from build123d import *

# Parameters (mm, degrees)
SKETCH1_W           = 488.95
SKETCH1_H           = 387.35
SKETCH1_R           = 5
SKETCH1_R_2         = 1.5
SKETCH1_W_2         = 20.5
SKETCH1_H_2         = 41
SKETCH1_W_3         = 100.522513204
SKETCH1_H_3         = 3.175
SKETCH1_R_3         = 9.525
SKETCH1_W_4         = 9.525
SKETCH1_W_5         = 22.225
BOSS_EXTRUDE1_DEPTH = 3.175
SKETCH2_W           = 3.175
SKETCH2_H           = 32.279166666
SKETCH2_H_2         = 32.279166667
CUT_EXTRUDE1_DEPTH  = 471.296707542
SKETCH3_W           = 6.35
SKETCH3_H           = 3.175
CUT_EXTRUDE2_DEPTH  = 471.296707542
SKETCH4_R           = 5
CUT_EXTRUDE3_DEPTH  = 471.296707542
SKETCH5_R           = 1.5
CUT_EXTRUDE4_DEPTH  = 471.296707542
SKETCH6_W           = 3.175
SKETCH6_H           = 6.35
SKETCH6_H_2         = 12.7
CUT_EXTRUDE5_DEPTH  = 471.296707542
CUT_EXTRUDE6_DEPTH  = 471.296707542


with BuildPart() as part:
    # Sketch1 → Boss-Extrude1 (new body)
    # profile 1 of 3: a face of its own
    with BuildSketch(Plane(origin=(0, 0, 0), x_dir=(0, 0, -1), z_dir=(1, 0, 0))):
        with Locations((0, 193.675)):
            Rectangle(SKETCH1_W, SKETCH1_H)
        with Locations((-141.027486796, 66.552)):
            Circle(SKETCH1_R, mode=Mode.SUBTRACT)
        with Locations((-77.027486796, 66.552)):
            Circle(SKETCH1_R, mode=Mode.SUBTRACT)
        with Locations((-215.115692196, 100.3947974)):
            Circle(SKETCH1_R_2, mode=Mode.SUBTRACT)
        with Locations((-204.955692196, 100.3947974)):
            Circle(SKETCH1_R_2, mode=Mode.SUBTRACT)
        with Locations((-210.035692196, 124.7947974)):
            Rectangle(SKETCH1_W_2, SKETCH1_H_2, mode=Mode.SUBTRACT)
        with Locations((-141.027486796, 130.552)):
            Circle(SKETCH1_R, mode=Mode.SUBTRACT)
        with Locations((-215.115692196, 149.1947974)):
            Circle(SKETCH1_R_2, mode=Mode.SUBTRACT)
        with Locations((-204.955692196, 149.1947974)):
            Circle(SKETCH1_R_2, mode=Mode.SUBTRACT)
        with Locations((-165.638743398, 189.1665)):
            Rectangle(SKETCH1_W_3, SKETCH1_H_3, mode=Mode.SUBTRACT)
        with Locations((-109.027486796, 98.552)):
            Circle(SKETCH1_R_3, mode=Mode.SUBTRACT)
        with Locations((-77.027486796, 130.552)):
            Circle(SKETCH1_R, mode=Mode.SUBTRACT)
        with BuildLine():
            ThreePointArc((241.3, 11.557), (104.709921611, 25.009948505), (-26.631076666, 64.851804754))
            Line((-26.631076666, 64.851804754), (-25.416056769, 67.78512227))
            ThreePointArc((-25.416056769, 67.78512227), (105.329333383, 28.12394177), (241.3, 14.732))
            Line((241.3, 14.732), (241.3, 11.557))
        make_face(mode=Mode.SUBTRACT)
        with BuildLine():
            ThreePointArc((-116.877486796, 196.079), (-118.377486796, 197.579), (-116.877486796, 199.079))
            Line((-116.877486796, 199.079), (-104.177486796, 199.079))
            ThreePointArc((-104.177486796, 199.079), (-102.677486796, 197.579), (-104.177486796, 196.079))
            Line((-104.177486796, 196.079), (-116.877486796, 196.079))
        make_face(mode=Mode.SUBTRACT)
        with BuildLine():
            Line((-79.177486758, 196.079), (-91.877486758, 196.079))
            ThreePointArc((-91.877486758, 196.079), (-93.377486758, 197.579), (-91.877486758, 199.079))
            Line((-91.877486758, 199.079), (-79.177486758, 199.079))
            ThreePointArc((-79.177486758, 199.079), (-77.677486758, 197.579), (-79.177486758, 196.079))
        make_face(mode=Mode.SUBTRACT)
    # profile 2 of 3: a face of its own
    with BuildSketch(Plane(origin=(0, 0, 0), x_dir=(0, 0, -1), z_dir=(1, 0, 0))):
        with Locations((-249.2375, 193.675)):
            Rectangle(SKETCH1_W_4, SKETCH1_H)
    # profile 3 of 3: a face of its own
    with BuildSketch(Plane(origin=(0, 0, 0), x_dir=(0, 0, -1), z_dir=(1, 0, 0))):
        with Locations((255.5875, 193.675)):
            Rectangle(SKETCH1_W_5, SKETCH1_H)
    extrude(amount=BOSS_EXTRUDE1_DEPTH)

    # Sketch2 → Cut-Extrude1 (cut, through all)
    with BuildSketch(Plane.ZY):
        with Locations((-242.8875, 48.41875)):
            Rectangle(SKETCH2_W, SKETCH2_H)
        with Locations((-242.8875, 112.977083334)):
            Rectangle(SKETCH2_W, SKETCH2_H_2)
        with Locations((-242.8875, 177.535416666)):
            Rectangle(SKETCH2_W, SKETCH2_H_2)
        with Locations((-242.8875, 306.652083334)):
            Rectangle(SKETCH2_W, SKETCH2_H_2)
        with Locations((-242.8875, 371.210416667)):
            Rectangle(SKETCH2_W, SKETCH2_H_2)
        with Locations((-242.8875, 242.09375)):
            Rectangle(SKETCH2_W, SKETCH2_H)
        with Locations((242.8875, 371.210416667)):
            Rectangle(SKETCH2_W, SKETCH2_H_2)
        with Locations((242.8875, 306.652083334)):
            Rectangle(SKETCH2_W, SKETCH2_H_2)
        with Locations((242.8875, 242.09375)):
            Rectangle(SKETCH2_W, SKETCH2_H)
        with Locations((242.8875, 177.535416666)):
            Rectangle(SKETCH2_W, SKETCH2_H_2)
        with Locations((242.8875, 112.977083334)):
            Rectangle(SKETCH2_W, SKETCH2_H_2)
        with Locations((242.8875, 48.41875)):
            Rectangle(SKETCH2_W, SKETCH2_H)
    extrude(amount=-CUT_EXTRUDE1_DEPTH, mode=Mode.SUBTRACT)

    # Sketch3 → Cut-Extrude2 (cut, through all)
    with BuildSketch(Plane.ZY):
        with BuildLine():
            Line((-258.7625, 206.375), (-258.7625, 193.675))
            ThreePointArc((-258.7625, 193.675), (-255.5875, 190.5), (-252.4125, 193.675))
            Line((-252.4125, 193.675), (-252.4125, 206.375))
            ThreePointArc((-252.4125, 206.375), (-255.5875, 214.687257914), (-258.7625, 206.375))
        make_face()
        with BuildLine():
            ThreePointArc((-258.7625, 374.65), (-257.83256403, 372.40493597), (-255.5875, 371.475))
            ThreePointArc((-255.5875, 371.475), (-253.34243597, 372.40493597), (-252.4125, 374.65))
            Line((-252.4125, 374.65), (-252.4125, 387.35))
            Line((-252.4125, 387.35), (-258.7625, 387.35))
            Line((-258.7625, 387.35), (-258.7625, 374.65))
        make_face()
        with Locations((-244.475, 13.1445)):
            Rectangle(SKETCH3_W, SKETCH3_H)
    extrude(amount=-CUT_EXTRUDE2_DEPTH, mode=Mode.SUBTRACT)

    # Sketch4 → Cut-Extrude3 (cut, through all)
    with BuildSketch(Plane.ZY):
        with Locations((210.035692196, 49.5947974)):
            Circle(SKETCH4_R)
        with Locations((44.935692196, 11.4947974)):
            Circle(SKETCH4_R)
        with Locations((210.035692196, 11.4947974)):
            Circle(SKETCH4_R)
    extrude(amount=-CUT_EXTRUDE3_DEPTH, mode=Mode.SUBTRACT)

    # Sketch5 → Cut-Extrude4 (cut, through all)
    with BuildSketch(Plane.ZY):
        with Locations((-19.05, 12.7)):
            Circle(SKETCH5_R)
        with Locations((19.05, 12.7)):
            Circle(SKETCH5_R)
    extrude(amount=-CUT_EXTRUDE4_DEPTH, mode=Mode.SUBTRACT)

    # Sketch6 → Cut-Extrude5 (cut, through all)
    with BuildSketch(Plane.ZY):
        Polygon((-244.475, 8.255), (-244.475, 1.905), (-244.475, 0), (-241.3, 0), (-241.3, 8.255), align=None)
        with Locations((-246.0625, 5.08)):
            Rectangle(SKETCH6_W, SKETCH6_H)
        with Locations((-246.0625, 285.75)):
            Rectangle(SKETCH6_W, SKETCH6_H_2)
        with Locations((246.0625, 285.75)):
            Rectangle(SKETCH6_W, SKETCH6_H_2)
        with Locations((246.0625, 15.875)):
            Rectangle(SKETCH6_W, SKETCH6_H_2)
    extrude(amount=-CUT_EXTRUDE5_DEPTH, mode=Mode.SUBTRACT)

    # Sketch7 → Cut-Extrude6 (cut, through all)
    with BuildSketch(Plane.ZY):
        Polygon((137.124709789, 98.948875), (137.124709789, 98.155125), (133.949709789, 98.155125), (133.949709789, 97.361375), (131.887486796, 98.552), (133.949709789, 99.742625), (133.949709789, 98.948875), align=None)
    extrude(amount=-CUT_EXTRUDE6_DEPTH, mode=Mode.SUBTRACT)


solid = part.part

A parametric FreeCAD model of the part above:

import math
import FreeCAD as App
import Part
import Sketcher
Q = App.Units.Quantity

doc = App.newDocument("Part")
body = doc.addObject("PartDesign::Body", "Body")

# Sketch on YZ plane
sketch1 = body.newObject("Sketcher::SketchObject", "Sketch")
sketch1.AttachmentSupport = (doc.getObject("YZ_Plane"), [""])
sketch1.MapMode = "FlatFace"
sketch1.addGeometry([
    Part.LineSegment(App.Vector(0, -266.7, 0), App.Vector(387.4, -266.7, 0)),  # 0
    Part.LineSegment(App.Vector(387.4, -266.7, 0), App.Vector(387.4, 254, 0)),  # 1
    Part.LineSegment(App.Vector(387.4, 254, 0), App.Vector(0, 254, 0)),  # 2
    Part.LineSegment(App.Vector(0, 254, 0), App.Vector(0, -266.7, 0)),  # 3
    Part.Circle(App.Vector(66.6, 141, 0), App.Vector(0, 0, 1), 5),  # 4
    Part.Circle(App.Vector(100.4, 215.1, 0), App.Vector(0, 0, 1), 1.5),  # 5
    Part.Circle(App.Vector(100.4, 205, 0), App.Vector(0, 0, 1), 1.5),  # 6
    Part.Circle(App.Vector(98.6, 109, 0), App.Vector(0, 0, 1), 9.5),  # 7
    Part.Circle(App.Vector(66.6, 77, 0), App.Vector(0, 0, 1), 5),  # 8
    Part.LineSegment(App.Vector(14.7, -241.3, 0), App.Vector(11.6, -241.3, 0)),  # 9
    Part.ArcOfCircle(Part.Circle(App.Vector(711.7, -241.3, 0), App.Vector(0, 0, 1), 700.1), math.radians(157), math.radians(180)),  # 10
    Part.LineSegment(App.Vector(64.9, 26.6, 0), App.Vector(67.8, 25.4, 0)),  # 11
    Part.ArcOfCircle(Part.Circle(App.Vector(711.7, -241.3, 0), App.Vector(0, 0, 1), 697), math.radians(157), math.radians(180)),  # 12
    Part.LineSegment(App.Vector(104.3, 199.8, 0), App.Vector(104.3, 220.3, 0)),  # 13
    Part.LineSegment(App.Vector(104.3, 220.3, 0), App.Vector(145.3, 220.3, 0)),  # 14
    Part.LineSegment(App.Vector(145.3, 220.3, 0), App.Vector(145.3, 199.8, 0)),  # 15
    Part.LineSegment(App.Vector(145.3, 199.8, 0), App.Vector(104.3, 199.8, 0)),  # 16
    Part.Circle(App.Vector(149.2, 215.1, 0), App.Vector(0, 0, 1), 1.5),  # 17
    Part.Circle(App.Vector(149.2, 205, 0), App.Vector(0, 0, 1), 1.5),  # 18
    Part.Circle(App.Vector(130.6, 141, 0), App.Vector(0, 0, 1), 5),  # 19
    Part.Circle(App.Vector(130.6, 77, 0), App.Vector(0, 0, 1), 5),  # 20
    Part.LineSegment(App.Vector(187.6, 115.4, 0), App.Vector(187.6, 215.9, 0)),  # 21
    Part.LineSegment(App.Vector(187.6, 215.9, 0), App.Vector(190.8, 215.9, 0)),  # 22
    Part.LineSegment(App.Vector(190.8, 215.9, 0), App.Vector(190.8, 115.4, 0)),  # 23
    Part.LineSegment(App.Vector(190.8, 115.4, 0), App.Vector(187.6, 115.4, 0)),  # 24
    Part.LineSegment(App.Vector(196.1, 104.2, 0), App.Vector(196.1, 116.9, 0)),  # 25
    Part.ArcOfCircle(Part.Circle(App.Vector(197.6, 116.9, 0), App.Vector(0, 0, 1), 1.5), math.radians(0), math.radians(180)),  # 26
    Part.LineSegment(App.Vector(199.1, 116.9, 0), App.Vector(199.1, 104.2, 0)),  # 27
    Part.ArcOfCircle(Part.Circle(App.Vector(197.6, 104.2, 0), App.Vector(0, 0, 1), 1.5), math.radians(180), math.radians(360)),  # 28
    Part.ArcOfCircle(Part.Circle(App.Vector(197.6, 79.2, 0), App.Vector(0, 0, 1), 1.5), math.radians(180), math.radians(360)),  # 29
    Part.LineSegment(App.Vector(196.1, 79.2, 0), App.Vector(196.1, 91.9, 0)),  # 30
    Part.ArcOfCircle(Part.Circle(App.Vector(197.6, 91.9, 0), App.Vector(0, 0, 1), 1.5), math.radians(0), math.radians(180)),  # 31
    Part.LineSegment(App.Vector(199.1, 91.9, 0), App.Vector(199.1, 79.2, 0)),  # 32
], False)
sketch1.addConstraint([
    Sketcher.Constraint("Coincident", 0, 2, 1, 1),
    Sketcher.Constraint("Coincident", 1, 2, 2, 1),
    Sketcher.Constraint("Coincident", 2, 2, 3, 1),
    Sketcher.Constraint("Coincident", 3, 2, 0, 1),
    Sketcher.Constraint("Coincident", 9, 2, 10, 2),
    Sketcher.Constraint("Coincident", 10, 1, 11, 1),
    Sketcher.Constraint("Coincident", 11, 2, 12, 1),
    Sketcher.Constraint("Coincident", 12, 2, 9, 1),
    Sketcher.Constraint("Coincident", 13, 2, 14, 1),
    Sketcher.Constraint("Coincident", 14, 2, 15, 1),
    Sketcher.Constraint("Coincident", 15, 2, 16, 1),
    Sketcher.Constraint("Coincident", 16, 2, 13, 1),
    Sketcher.Constraint("Coincident", 21, 2, 22, 1),
    Sketcher.Constraint("Coincident", 22, 2, 23, 1),
    Sketcher.Constraint("Coincident", 23, 2, 24, 1),
    Sketcher.Constraint("Coincident", 24, 2, 21, 1),
    Sketcher.Constraint("Tangent", 25, 2, 26, 2),
    Sketcher.Constraint("Tangent", 26, 1, 27, 1),
    Sketcher.Constraint("Tangent", 27, 2, 28, 2),
    Sketcher.Constraint("Tangent", 28, 1, 25, 1),
    Sketcher.Constraint("Tangent", 29, 1, 30, 1),
    Sketcher.Constraint("Tangent", 30, 2, 31, 2),
    Sketcher.Constraint("Tangent", 31, 1, 32, 1),
    Sketcher.Constraint("Tangent", 32, 2, 29, 2),
    Sketcher.Constraint("Horizontal", 0),
    Sketcher.Constraint("Vertical", 1),
    Sketcher.Constraint("Horizontal", 2),
    Sketcher.Constraint("Vertical", 3),
    Sketcher.Constraint("Horizontal", 9),
    Sketcher.Constraint("Vertical", 13),
    Sketcher.Constraint("Horizontal", 14),
    Sketcher.Constraint("Vertical", 15),
    Sketcher.Constraint("Horizontal", 16),
    Sketcher.Constraint("Vertical", 21),
    Sketcher.Constraint("Horizontal", 22),
    Sketcher.Constraint("Vertical", 23),
    Sketcher.Constraint("Horizontal", 24),
    Sketcher.Constraint("Vertical", 25),
    Sketcher.Constraint("Vertical", 27),
    Sketcher.Constraint("Vertical", 30),
    Sketcher.Constraint("Vertical", 32),
    Sketcher.Constraint("Coincident", 12, 3, 10, 3),
    Sketcher.Constraint("Equal", 5, 6),
    Sketcher.Constraint("Equal", 4, 8),
    Sketcher.Constraint("Equal", 6, 17),
    Sketcher.Constraint("Equal", 17, 18),
    Sketcher.Constraint("Equal", 8, 19),
    Sketcher.Constraint("Equal", 19, 20),
    Sketcher.Constraint("Equal", 18, 26),
    Sketcher.Constraint("Equal", 28, 29),
    Sketcher.Constraint("PointOnObject", 2, 2, -2),
    Sketcher.Constraint("Horizontal", 5, 3, 17, 3),
    Sketcher.Constraint("Horizontal", 6, 3, 18, 3),
    Sketcher.Constraint("Horizontal", 4, 3, 19, 3),
    Sketcher.Constraint("Horizontal", 8, 3, 20, 3),
    Sketcher.Constraint("Horizontal", 12, 3, 9, 2),
    Sketcher.Constraint("Vertical", 5, 3, 6, 3),
    Sketcher.Constraint("Vertical", 4, 3, 8, 3),
    Sketcher.Constraint("Vertical", 17, 3, 18, 3),
    Sketcher.Constraint("Vertical", 19, 3, 20, 3),
    Sketcher.Constraint("Vertical", 28, 3, 29, 3),
    Sketcher.Constraint("Equal", 9, 22),
    Sketcher.Constraint("Equal", 27, 30),
    Sketcher.Constraint("Diameter", 7, Q("0.75 in")),
    Sketcher.Constraint("DistanceY", 1, 1, 1, 2, Q("20.5 in")),
    Sketcher.Constraint("DistanceY", 25, 1, 25, 2, Q("0.5 in")),
    Sketcher.Constraint("DistanceY", -1, 1, 1, 2, Q("10 in")),
    Sketcher.Constraint("DistanceY", 0, 2, 12, 3, Q("1 in")),
    Sketcher.Constraint("DistanceX", 0, 1, 0, 2, Q("15.25 in")),
    Sketcher.Constraint("DistanceY", -1, 1, 21, 2, Q("8.5 in")),
    Sketcher.Constraint("Angle", 11, Q("-22.5 deg")),
    Sketcher.Constraint("DistanceY", 6, 3, 5, 3, Q("0.4 in")),
    Sketcher.Constraint("Diameter", 4, Q("10 mm")),
    Sketcher.Constraint("Diameter", 5, Q("3 mm")),
    Sketcher.Constraint("DistanceX", 9, 2, 9, 1, Q("0.125 in")),
    Sketcher.Constraint("DistanceX", -1, 1, 7, 3, Q("3.88 in")),
    Sketcher.Constraint("DistanceX", -1, 1, 12, 2, Q("0.58 in")),
    Sketcher.Constraint("DistanceX", -1, 1, 22, 2, Q("7.51 in")),
    Sketcher.Constraint("DistanceX", 14, 1, 14, 2, Q("41 mm")),
    Sketcher.Constraint("DistanceY", 13, 1, 13, 2, Q("20.5 mm")),
    Sketcher.Constraint("Radius", 10, Q("700.137644 mm")),
    Sketcher.Constraint("DistanceX", -1, 1, 4, 3, Q("66.552 mm")),
    Sketcher.Constraint("DistanceX", -1, 1, 19, 3, Q("130.552 mm")),
    Sketcher.Constraint("DistanceX", -1, 1, 26, 3, Q("197.579 mm")),
    Sketcher.Constraint("DistanceY", 7, 3, 4, 3, Q("32 mm")),
    Sketcher.Constraint("DistanceY", 8, 3, 7, 3, Q("32 mm")),
    Sketcher.Constraint("DistanceX", 5, 3, 17, 3, Q("48.8 mm")),
    Sketcher.Constraint("DistanceY", 26, 3, 19, 3, Q("24.15 mm")),
    Sketcher.Constraint("DistanceY", 29, 3, 28, 3, Q("25 mm")),
    Sketcher.Constraint("DistanceX", 5, 3, 13, 2, Q("3.9 mm")),
    Sketcher.Constraint("DistanceY", 5, 3, 13, 2, Q("5.17 mm")),
    Sketcher.Constraint("DistanceY", 23, 2, 26, 3, Q("1.5 mm")),
    Sketcher.Constraint("DistanceY", 21, 1, 21, 2, Q("100.522513 mm")),
    Sketcher.Constraint("DistanceY", 11, 2, 8, 3, Q("51.61143 mm")),
    Sketcher.Constraint("DistanceX", -1, 1, 5, 3, Q("100.394797 mm")),
    Sketcher.Constraint("DistanceY", -1, 1, 5, 3, Q("215.115692 mm")),
])
pad1 = body.newObject("PartDesign::Pad", "Pad")
pad1.Profile = sketch1
pad1.Length = Q("0.125 in")

# Sketch on YZ plane
sketch2 = body.newObject("Sketcher::SketchObject", "Sketch001")
sketch2.AttachmentSupport = (doc.getObject("YZ_Plane"), [""])
sketch2.MapMode = "FlatFace"
sketch2.addGeometry([
    Part.LineSegment(App.Vector(64.6, -244.5, 0), App.Vector(32.3, -244.5, 0)),  # 0
    Part.LineSegment(App.Vector(32.3, -244.5, 0), App.Vector(32.3, -241.3, 0)),  # 1
    Part.LineSegment(App.Vector(32.3, -241.3, 0), App.Vector(64.6, -241.3, 0)),  # 2
    Part.LineSegment(App.Vector(64.6, -241.3, 0), App.Vector(64.6, -244.5, 0)),  # 3
    Part.LineSegment(App.Vector(129.1, -244.5, 0), App.Vector(96.8, -244.5, 0)),  # 4
    Part.LineSegment(App.Vector(96.8, -244.5, 0), App.Vector(96.8, -241.3, 0)),  # 5
    Part.LineSegment(App.Vector(96.8, -241.3, 0), App.Vector(129.1, -241.3, 0)),  # 6
    Part.LineSegment(App.Vector(129.1, -241.3, 0), App.Vector(129.1, -244.5, 0)),  # 7
    Part.LineSegment(App.Vector(193.7, -244.5, 0), App.Vector(161.4, -244.5, 0)),  # 8
    Part.LineSegment(App.Vector(161.4, -244.5, 0), App.Vector(161.4, -241.3, 0)),  # 9
    Part.LineSegment(App.Vector(161.4, -241.3, 0), App.Vector(193.7, -241.3, 0)),  # 10
    Part.LineSegment(App.Vector(193.7, -241.3, 0), App.Vector(193.7, -244.5, 0)),  # 11
    Part.LineSegment(App.Vector(322.8, -244.5, 0), App.Vector(290.5, -244.5, 0)),  # 12
    Part.LineSegment(App.Vector(290.5, -244.5, 0), App.Vector(290.5, -241.3, 0)),  # 13
    Part.LineSegment(App.Vector(290.5, -241.3, 0), App.Vector(322.8, -241.3, 0)),  # 14
    Part.LineSegment(App.Vector(322.8, -241.3, 0), App.Vector(322.8, -244.5, 0)),  # 15
    Part.LineSegment(App.Vector(387.4, -244.5, 0), App.Vector(355.1, -244.5, 0)),  # 16
    Part.LineSegment(App.Vector(355.1, -244.5, 0), App.Vector(355.1, -241.3, 0)),  # 17
    Part.LineSegment(App.Vector(355.1, -241.3, 0), App.Vector(387.4, -241.3, 0)),  # 18
    Part.LineSegment(App.Vector(387.4, -241.3, 0), App.Vector(387.4, -244.5, 0)),  # 19
    Part.LineSegment(App.Vector(258.2, -244.5, 0), App.Vector(226, -244.5, 0)),  # 20
    Part.LineSegment(App.Vector(226, -244.5, 0), App.Vector(226, -241.3, 0)),  # 21
    Part.LineSegment(App.Vector(226, -241.3, 0), App.Vector(258.2, -241.3, 0)),  # 22
    Part.LineSegment(App.Vector(258.2, -241.3, 0), App.Vector(258.2, -244.5, 0)),  # 23
    Part.LineSegment(App.Vector(387.4, 241.3, 0), App.Vector(355.1, 241.3, 0)),  # 24
    Part.LineSegment(App.Vector(355.1, 241.3, 0), App.Vector(355.1, 244.5, 0)),  # 25
    Part.LineSegment(App.Vector(355.1, 244.5, 0), App.Vector(387.4, 244.5, 0)),  # 26
    Part.LineSegment(App.Vector(387.4, 244.5, 0), App.Vector(387.4, 241.3, 0)),  # 27
    Part.LineSegment(App.Vector(322.8, 241.3, 0), App.Vector(290.5, 241.3, 0)),  # 28
    Part.LineSegment(App.Vector(290.5, 241.3, 0), App.Vector(290.5, 244.5, 0)),  # 29
    Part.LineSegment(App.Vector(290.5, 244.5, 0), App.Vector(322.8, 244.5, 0)),  # 30
    Part.LineSegment(App.Vector(322.8, 244.5, 0), App.Vector(322.8, 241.3, 0)),  # 31
    Part.LineSegment(App.Vector(258.2, 241.3, 0), App.Vector(226, 241.3, 0)),  # 32
    Part.LineSegment(App.Vector(226, 241.3, 0), App.Vector(226, 244.5, 0)),  # 33
    Part.LineSegment(App.Vector(226, 244.5, 0), App.Vector(258.2, 244.5, 0)),  # 34
    Part.LineSegment(App.Vector(258.2, 244.5, 0), App.Vector(258.2, 241.3, 0)),  # 35
    Part.LineSegment(App.Vector(193.7, 241.3, 0), App.Vector(161.4, 241.3, 0)),  # 36
    Part.LineSegment(App.Vector(161.4, 241.3, 0), App.Vector(161.4, 244.5, 0)),  # 37
    Part.LineSegment(App.Vector(161.4, 244.5, 0), App.Vector(193.7, 244.5, 0)),  # 38
    Part.LineSegment(App.Vector(193.7, 244.5, 0), App.Vector(193.7, 241.3, 0)),  # 39
    Part.LineSegment(App.Vector(129.1, 241.3, 0), App.Vector(96.8, 241.3, 0)),  # 40
    Part.LineSegment(App.Vector(96.8, 241.3, 0), App.Vector(96.8, 244.5, 0)),  # 41
    Part.LineSegment(App.Vector(96.8, 244.5, 0), App.Vector(129.1, 244.5, 0)),  # 42
    Part.LineSegment(App.Vector(129.1, 244.5, 0), App.Vector(129.1, 241.3, 0)),  # 43
    Part.LineSegment(App.Vector(64.6, 241.3, 0), App.Vector(32.3, 241.3, 0)),  # 44
    Part.LineSegment(App.Vector(32.3, 241.3, 0), App.Vector(32.3, 244.5, 0)),  # 45
    Part.LineSegment(App.Vector(32.3, 244.5, 0), App.Vector(64.6, 244.5, 0)),  # 46
    Part.LineSegment(App.Vector(64.6, 244.5, 0), App.Vector(64.6, 241.3, 0)),  # 47
], False)
sketch2.addConstraint([
    Sketcher.Constraint("Coincident", 0, 2, 1, 1),
    Sketcher.Constraint("Coincident", 1, 2, 2, 1),
    Sketcher.Constraint("Coincident", 2, 2, 3, 1),
    Sketcher.Constraint("Coincident", 3, 2, 0, 1),
    Sketcher.Constraint("Coincident", 4, 2, 5, 1),
    Sketcher.Constraint("Coincident", 5, 2, 6, 1),
    Sketcher.Constraint("Coincident", 6, 2, 7, 1),
    Sketcher.Constraint("Coincident", 7, 2, 4, 1),
    Sketcher.Constraint("Coincident", 8, 2, 9, 1),
    Sketcher.Constraint("Coincident", 9, 2, 10, 1),
    Sketcher.Constraint("Coincident", 10, 2, 11, 1),
    Sketcher.Constraint("Coincident", 11, 2, 8, 1),
    Sketcher.Constraint("Coincident", 12, 2, 13, 1),
    Sketcher.Constraint("Coincident", 13, 2, 14, 1),
    Sketcher.Constraint("Coincident", 14, 2, 15, 1),
    Sketcher.Constraint("Coincident", 15, 2, 12, 1),
    Sketcher.Constraint("Coincident", 16, 2, 17, 1),
    Sketcher.Constraint("Coincident", 17, 2, 18, 1),
    Sketcher.Constraint("Coincident", 18, 2, 19, 1),
    Sketcher.Constraint("Coincident", 19, 2, 16, 1),
    Sketcher.Constraint("Coincident", 20, 2, 21, 1),
    Sketcher.Constraint("Coincident", 21, 2, 22, 1),
    Sketcher.Constraint("Coincident", 22, 2, 23, 1),
    Sketcher.Constraint("Coincident", 23, 2, 20, 1),
    Sketcher.Constraint("Coincident", 24, 2, 25, 1),
    Sketcher.Constraint("Coincident", 25, 2, 26, 1),
    Sketcher.Constraint("Coincident", 26, 2, 27, 1),
    Sketcher.Constraint("Coincident", 27, 2, 24, 1),
    Sketcher.Constraint("Coincident", 28, 2, 29, 1),
    Sketcher.Constraint("Coincident", 29, 2, 30, 1),
    Sketcher.Constraint("Coincident", 30, 2, 31, 1),
    Sketcher.Constraint("Coincident", 31, 2, 28, 1),
    Sketcher.Constraint("Coincident", 32, 2, 33, 1),
    Sketcher.Constraint("Coincident", 33, 2, 34, 1),
    Sketcher.Constraint("Coincident", 34, 2, 35, 1),
    Sketcher.Constraint("Coincident", 35, 2, 32, 1),
    Sketcher.Constraint("Coincident", 36, 2, 37, 1),
    Sketcher.Constraint("Coincident", 37, 2, 38, 1),
    Sketcher.Constraint("Coincident", 38, 2, 39, 1),
    Sketcher.Constraint("Coincident", 39, 2, 36, 1),
    Sketcher.Constraint("Coincident", 40, 2, 41, 1),
    Sketcher.Constraint("Coincident", 41, 2, 42, 1),
    Sketcher.Constraint("Coincident", 42, 2, 43, 1),
    Sketcher.Constraint("Coincident", 43, 2, 40, 1),
    Sketcher.Constraint("Coincident", 44, 2, 45, 1),
    Sketcher.Constraint("Coincident", 45, 2, 46, 1),
    Sketcher.Constraint("Coincident", 46, 2, 47, 1),
    Sketcher.Constraint("Coincident", 47, 2, 44, 1),
    Sketcher.Constraint("Horizontal", 0),
    Sketcher.Constraint("Vertical", 1),
    Sketcher.Constraint("Horizontal", 2),
    Sketcher.Constraint("Vertical", 3),
    Sketcher.Constraint("Horizontal", 4),
    Sketcher.Constraint("Vertical", 5),
    Sketcher.Constraint("Horizontal", 6),
    Sketcher.Constraint("Vertical", 7),
    Sketcher.Constraint("Horizontal", 8),
    Sketcher.Constraint("Vertical", 9),
    Sketcher.Constraint("Horizontal", 10),
    Sketcher.Constraint("Vertical", 11),
    Sketcher.Constraint("Horizontal", 12),
    Sketcher.Constraint("Vertical", 13),
    Sketcher.Constraint("Horizontal", 14),
    Sketcher.Constraint("Vertical", 15),
    Sketcher.Constraint("Horizontal", 16),
    Sketcher.Constraint("Vertical", 17),
    Sketcher.Constraint("Horizontal", 18),
    Sketcher.Constraint("Vertical", 19),
    Sketcher.Constraint("Horizontal", 20),
    Sketcher.Constraint("Vertical", 21),
    Sketcher.Constraint("Horizontal", 22),
    Sketcher.Constraint("Vertical", 23),
    Sketcher.Constraint("Horizontal", 24),
    Sketcher.Constraint("Vertical", 25),
    Sketcher.Constraint("Horizontal", 26),
    Sketcher.Constraint("Vertical", 27),
    Sketcher.Constraint("Horizontal", 28),
    Sketcher.Constraint("Vertical", 29),
    Sketcher.Constraint("Horizontal", 30),
    Sketcher.Constraint("Vertical", 31),
    Sketcher.Constraint("Horizontal", 32),
    Sketcher.Constraint("Vertical", 33),
    Sketcher.Constraint("Horizontal", 34),
    Sketcher.Constraint("Vertical", 35),
    Sketcher.Constraint("Horizontal", 36),
    Sketcher.Constraint("Vertical", 37),
    Sketcher.Constraint("Horizontal", 38),
    Sketcher.Constraint("Vertical", 39),
    Sketcher.Constraint("Horizontal", 40),
    Sketcher.Constraint("Vertical", 41),
    Sketcher.Constraint("Horizontal", 42),
    Sketcher.Constraint("Vertical", 43),
    Sketcher.Constraint("Horizontal", 44),
    Sketcher.Constraint("Vertical", 45),
    Sketcher.Constraint("Horizontal", 46),
    Sketcher.Constraint("Vertical", 47),
    Sketcher.Constraint("Symmetric", 17, 2, 24, 2, -1),
    Sketcher.Constraint("Symmetric", 19, 2, 26, 2, -1),
    Sketcher.Constraint("Symmetric", 13, 2, 28, 2, -1),
    Sketcher.Constraint("Symmetric", 15, 2, 30, 2, -1),
    Sketcher.Constraint("Symmetric", 21, 2, 32, 2, -1),
    Sketcher.Constraint("Symmetric", 23, 2, 34, 2, -1),
    Sketcher.Constraint("Symmetric", 9, 2, 36, 2, -1),
    Sketcher.Constraint("Symmetric", 11, 2, 38, 2, -1),
    Sketcher.Constraint("Symmetric", 5, 2, 40, 2, -1),
    Sketcher.Constraint("Symmetric", 7, 2, 42, 2, -1),
    Sketcher.Constraint("Symmetric", 1, 2, 44, 2, -1),
    Sketcher.Constraint("Symmetric", 3, 2, 46, 2, -1),
    Sketcher.Constraint("Horizontal", 3, 2, 4, 2),
    Sketcher.Constraint("Horizontal", 2, 2, 5, 2),
    Sketcher.Constraint("Horizontal", 7, 2, 8, 2),
    Sketcher.Constraint("Horizontal", 6, 2, 9, 2),
    Sketcher.Constraint("Horizontal", 11, 2, 12, 2),
    Sketcher.Constraint("Horizontal", 10, 2, 13, 2),
    Sketcher.Constraint("Horizontal", 15, 2, 16, 2),
    Sketcher.Constraint("Horizontal", 14, 2, 17, 2),
    Sketcher.Constraint("Horizontal", 19, 2, 20, 2),
    Sketcher.Constraint("Horizontal", 18, 2, 21, 2),
    Sketcher.Constraint("Equal", 2, 4),
    Sketcher.Constraint("Equal", 6, 8),
    Sketcher.Constraint("Equal", 10, 12),
    Sketcher.Constraint("Equal", 14, 16),
    Sketcher.Constraint("Equal", 18, 20),
    Sketcher.Constraint("DistanceY", 17, 2, 24, 2, Q("19 in")),
    Sketcher.Constraint("DistanceY", 1, 1, 1, 2, Q("0.125 in")),
    Sketcher.Constraint("DistanceX", -1, 1, 18, 2, Q("15.25 in")),
    Sketcher.Constraint("DistanceX", -1, 1, 4, 2, Q("3.8125 in")),
    Sketcher.Constraint("DistanceX", -1, 1, 10, 2, Q("7.625 in")),
    Sketcher.Constraint("DistanceX", -1, 1, 12, 2, Q("11.4375 in")),
    Sketcher.Constraint("DistanceX", 1, 2, 6, 2, Q("3.8125 in")),
    Sketcher.Constraint("DistanceX", 3, 2, 8, 2, Q("3.8125 in")),
    Sketcher.Constraint("DistanceX", 32, 2, 31, 2, Q("3.8125 in")),
])
pocket1 = body.newObject("PartDesign::Pocket", "Pocket")
pocket1.Profile = sketch2
pocket1.Type = "ThroughAll"
pocket1.Reversed = True

# Sketch on YZ plane
sketch3 = body.newObject("Sketcher::SketchObject", "Sketch002")
sketch3.AttachmentSupport = (doc.getObject("YZ_Plane"), [""])
sketch3.MapMode = "FlatFace"
sketch3.addGeometry([
    Part.LineSegment(App.Vector(206.4, -258.8, 0), App.Vector(193.7, -258.8, 0)),  # 0
    Part.ArcOfCircle(Part.Circle(App.Vector(193.7, -255.6, 0), App.Vector(0, 0, 1), 3.2), math.radians(90), math.radians(270)),  # 1
    Part.LineSegment(App.Vector(193.7, -252.4, 0), App.Vector(206.4, -252.4, 0)),  # 2
    Part.ArcOfCircle(Part.Circle(App.Vector(209.9, -255.6, 0), App.Vector(0, 0, 1), 4.8), math.radians(-138), math.radians(138)),  # 3
    Part.ArcOfCircle(Part.Circle(App.Vector(374.7, -255.6, 0), App.Vector(0, 0, 1), 3.2), math.radians(-180), math.radians(-90)),  # 4
    Part.ArcOfCircle(Part.Circle(App.Vector(374.7, -255.6, 0), App.Vector(0, 0, 1), 3.2), math.radians(90), math.radians(180)),  # 5
    Part.LineSegment(App.Vector(374.6, -252.4, 0), App.Vector(387.4, -252.4, 0)),  # 6
    Part.LineSegment(App.Vector(387.4, -252.4, 0), App.Vector(387.4, -258.8, 0)),  # 7
    Part.LineSegment(App.Vector(387.4, -258.8, 0), App.Vector(374.6, -258.8, 0)),  # 8
    Part.LineSegment(App.Vector(14.7, -247.7, 0), App.Vector(11.6, -247.7, 0)),  # 9
    Part.LineSegment(App.Vector(11.6, -247.7, 0), App.Vector(11.6, -241.3, 0)),  # 10
    Part.LineSegment(App.Vector(11.6, -241.3, 0), App.Vector(14.7, -241.3, 0)),  # 11
    Part.LineSegment(App.Vector(14.7, -241.3, 0), App.Vector(14.7, -247.7, 0)),  # 12
], False)
sketch3.addConstraint([
    Sketcher.Constraint("Tangent", 0, 2, 1, 2),
    Sketcher.Constraint("Tangent", 1, 1, 2, 1),
    Sketcher.Constraint("Coincident", 2, 2, 3, 2),
    Sketcher.Constraint("Coincident", 3, 1, 0, 1),
    Sketcher.Constraint("Tangent", 4, 1, 5, 2),
    Sketcher.Constraint("Tangent", 5, 1, 6, 1),
    Sketcher.Constraint("Coincident", 6, 2, 7, 1),
    Sketcher.Constraint("Coincident", 7, 2, 8, 1),
    Sketcher.Constraint("Tangent", 8, 2, 4, 2),
    Sketcher.Constraint("Coincident", 9, 2, 10, 1),
    Sketcher.Constraint("Coincident", 10, 2, 11, 1),
    Sketcher.Constraint("Coincident", 11, 2, 12, 1),
    Sketcher.Constraint("Coincident", 12, 2, 9, 1),
    Sketcher.Constraint("Horizontal", 0),
    Sketcher.Constraint("Horizontal", 2),
    Sketcher.Constraint("Horizontal", 6),
    Sketcher.Constraint("Vertical", 7),
    Sketcher.Constraint("Horizontal", 8),
    Sketcher.Constraint("Horizontal", 9),
    Sketcher.Constraint("Vertical", 10),
    Sketcher.Constraint("Horizontal", 11),
    Sketcher.Constraint("Vertical", 12),
    Sketcher.Constraint("Equal", 1, 4),
    Sketcher.Constraint("Equal", 4, 5),
    Sketcher.Constraint("Horizontal", 1, 3, 3, 3),
    Sketcher.Constraint("Horizontal", 3, 3, 4, 3),
    Sketcher.Constraint("Horizontal", 5, 3, 4, 1),
    Sketcher.Constraint("Equal", 2, 6),
    Sketcher.Constraint("Equal", 7, 10),
    Sketcher.Constraint("DistanceX", 0, 2, 0, 1, Q("0.5 in")),
    Sketcher.Constraint("Radius", 1, Q("0.125 in")),
    Sketcher.Constraint("Radius", 3, Q("0.1875 in")),
    Sketcher.Constraint("DistanceY", 10, 2, -1, 1, Q("9.5 in")),
    Sketcher.Constraint("DistanceX", 2, 2, 4, 1, Q("6.5 in")),
    Sketcher.Constraint("DistanceX", 9, 2, 9, 1, Q("0.125 in")),
    Sketcher.Constraint("DistanceX", -1, 1, 4, 3, Q("14.75 in")),
    Sketcher.Constraint("DistanceX", -1, 1, 11, 2, Q("0.58 in")),
    Sketcher.Constraint("DistanceY", 1, 3, -1, 1, Q("10.0625 in")),
])
pocket2 = body.newObject("PartDesign::Pocket", "Pocket001")
pocket2.Profile = sketch3
pocket2.Type = "ThroughAll"
pocket2.Reversed = True

# Sketch on YZ plane
sketch4 = body.newObject("Sketcher::SketchObject", "Sketch003")
sketch4.AttachmentSupport = (doc.getObject("YZ_Plane"), [""])
sketch4.MapMode = "FlatFace"
sketch4.addGeometry([
    Part.Circle(App.Vector(50, 210, 0), App.Vector(0, 0, 1), 5),
    Part.Circle(App.Vector(11, 45, 0), App.Vector(0, 0, 1), 5),
    Part.Circle(App.Vector(11, 210, 0), App.Vector(0, 0, 1), 5),
], False)
sketch4.addConstraint([
    Sketcher.Constraint("Equal", 0, 1),
    Sketcher.Constraint("Equal", 1, 2),
    Sketcher.Constraint("Horizontal", 0, 3, 2, 3),
    Sketcher.Constraint("Vertical", 1, 3, 2, 3),
    Sketcher.Constraint("DistanceX", 1, 3, 0, 3, Q("1.5 in")),
    Sketcher.Constraint("DistanceY", 1, 3, 0, 3, Q("6.5 in")),
    Sketcher.Constraint("Diameter", 0, Q("10 mm")),
    Sketcher.Constraint("DistanceX", -1, 1, 0, 3, Q("49.594797 mm")),
    Sketcher.Constraint("DistanceY", -1, 1, 0, 3, Q("210.035692 mm")),
])
pocket3 = body.newObject("PartDesign::Pocket", "Pocket002")
pocket3.Profile = sketch4
pocket3.Type = "ThroughAll"
pocket3.Reversed = True

# Sketch on YZ plane
sketch5 = body.newObject("Sketcher::SketchObject", "Sketch004")
sketch5.AttachmentSupport = (doc.getObject("YZ_Plane"), [""])
sketch5.MapMode = "FlatFace"
sketch5.addGeometry([
    Part.Circle(App.Vector(12.7, -19.1, 0), App.Vector(0, 0, 1), 1.5),
    Part.Circle(App.Vector(12.7, 19.1, 0), App.Vector(0, 0, 1), 1.5),
], False)
sketch5.addConstraint([
    Sketcher.Constraint("Equal", 0, 1),
    Sketcher.Constraint("Symmetric", 0, 3, 1, 3, -1),
    Sketcher.Constraint("DistanceX", -1, 1, 0, 3, Q("0.5 in")),
    Sketcher.Constraint("DistanceY", 0, 3, 1, 3, Q("1.5 in")),
    Sketcher.Constraint("Diameter", 0, Q("3 mm")),
])
pocket4 = body.newObject("PartDesign::Pocket", "Pocket003")
pocket4.Profile = sketch5
pocket4.Type = "ThroughAll"
pocket4.Reversed = True

# Sketch on YZ plane
sketch6 = body.newObject("Sketcher::SketchObject", "Sketch005")
sketch6.AttachmentSupport = (doc.getObject("YZ_Plane"), [""])
sketch6.MapMode = "FlatFace"
sketch6.addGeometry([
    Part.LineSegment(App.Vector(1.9, -244.5, 0), App.Vector(0, -244.5, 0)),  # 0
    Part.LineSegment(App.Vector(0, -244.5, 0), App.Vector(0, -241.3, 0)),  # 1
    Part.LineSegment(App.Vector(0, -241.3, 0), App.Vector(8.3, -241.3, 0)),  # 2
    Part.LineSegment(App.Vector(8.3, -241.3, 0), App.Vector(8.3, -247.7, 0)),  # 3
    Part.LineSegment(App.Vector(8.3, -247.7, 0), App.Vector(1.9, -247.7, 0)),  # 4
    Part.LineSegment(App.Vector(1.9, -247.7, 0), App.Vector(1.9, -244.5, 0)),  # 5
    Part.LineSegment(App.Vector(292.1, -247.7, 0), App.Vector(279.4, -247.7, 0)),  # 6
    Part.LineSegment(App.Vector(279.4, -247.7, 0), App.Vector(279.4, -244.5, 0)),  # 7
    Part.LineSegment(App.Vector(279.4, -244.5, 0), App.Vector(292.1, -244.5, 0)),  # 8
    Part.LineSegment(App.Vector(292.1, -244.5, 0), App.Vector(292.1, -247.7, 0)),  # 9
    Part.LineSegment(App.Vector(292.1, 244.5, 0), App.Vector(279.4, 244.5, 0)),  # 10
    Part.LineSegment(App.Vector(279.4, 244.5, 0), App.Vector(279.4, 247.7, 0)),  # 11
    Part.LineSegment(App.Vector(279.4, 247.7, 0), App.Vector(292.1, 247.7, 0)),  # 12
    Part.LineSegment(App.Vector(292.1, 247.7, 0), App.Vector(292.1, 244.5, 0)),  # 13
    Part.LineSegment(App.Vector(22.2, 244.5, 0), App.Vector(9.5, 244.5, 0)),  # 14
    Part.LineSegment(App.Vector(9.5, 244.5, 0), App.Vector(9.5, 247.7, 0)),  # 15
    Part.LineSegment(App.Vector(9.5, 247.7, 0), App.Vector(22.2, 247.7, 0)),  # 16
    Part.LineSegment(App.Vector(22.2, 247.7, 0), App.Vector(22.2, 244.5, 0)),  # 17
], False)
sketch6.addConstraint([
    Sketcher.Constraint("Coincident", 0, 2, 1, 1),
    Sketcher.Constraint("Coincident", 1, 2, 2, 1),
    Sketcher.Constraint("Coincident", 2, 2, 3, 1),
    Sketcher.Constraint("Coincident", 3, 2, 4, 1),
    Sketcher.Constraint("Coincident", 4, 2, 5, 1),
    Sketcher.Constraint("Coincident", 5, 2, 0, 1),
    Sketcher.Constraint("Coincident", 6, 2, 7, 1),
    Sketcher.Constraint("Coincident", 7, 2, 8, 1),
    Sketcher.Constraint("Coincident", 8, 2, 9, 1),
    Sketcher.Constraint("Coincident", 9, 2, 6, 1),
    Sketcher.Constraint("Coincident", 10, 2, 11, 1),
    Sketcher.Constraint("Coincident", 11, 2, 12, 1),
    Sketcher.Constraint("Coincident", 12, 2, 13, 1),
    Sketcher.Constraint("Coincident", 13, 2, 10, 1),
    Sketcher.Constraint("Coincident", 14, 2, 15, 1),
    Sketcher.Constraint("Coincident", 15, 2, 16, 1),
    Sketcher.Constraint("Coincident", 16, 2, 17, 1),
    Sketcher.Constraint("Coincident", 17, 2, 14, 1),
    Sketcher.Constraint("Horizontal", 0),
    Sketcher.Constraint("Vertical", 1),
    Sketcher.Constraint("Horizontal", 2),
    Sketcher.Constraint("Vertical", 3),
    Sketcher.Constraint("Horizontal", 4),
    Sketcher.Constraint("Vertical", 5),
    Sketcher.Constraint("Horizontal", 6),
    Sketcher.Constraint("Vertical", 7),
    Sketcher.Constraint("Horizontal", 8),
    Sketcher.Constraint("Vertical", 9),
    Sketcher.Constraint("Horizontal", 10),
    Sketcher.Constraint("Vertical", 11),
    Sketcher.Constraint("Horizontal", 12),
    Sketcher.Constraint("Vertical", 13),
    Sketcher.Constraint("Horizontal", 14),
    Sketcher.Constraint("Vertical", 15),
    Sketcher.Constraint("Horizontal", 16),
    Sketcher.Constraint("Vertical", 17),
    Sketcher.Constraint("Symmetric", 7, 2, 10, 2, -1),
    Sketcher.Constraint("Symmetric", 9, 2, 12, 2, -1),
    Sketcher.Constraint("PointOnObject", 0, 2, -2),
    Sketcher.Constraint("Horizontal", 4, 2, 6, 2),
    Sketcher.Constraint("Horizontal", 5, 2, 7, 2),
    Sketcher.Constraint("Horizontal", 13, 2, 14, 2),
    Sketcher.Constraint("Horizontal", 12, 2, 15, 2),
    Sketcher.Constraint("Equal", 12, 14),
    Sketcher.Constraint("Equal", 4, 3),
    Sketcher.Constraint("Equal", 1, 5),
    Sketcher.Constraint("DistanceX", 6, 2, 6, 1, Q("0.5 in")),
    Sketcher.Constraint("DistanceX", -1, 1, 6, 2, Q("11 in")),
    Sketcher.Constraint("DistanceX", 4, 2, 4, 1, Q("0.25 in")),
    Sketcher.Constraint("DistanceY", 1, 2, -1, 1, Q("9.5 in")),
    Sketcher.Constraint("DistanceX", 0, 2, 0, 1, Q("0.075 in")),
    Sketcher.Constraint("DistanceX", 2, 2, 14, 2, Q("0.05 in")),
])
pocket5 = body.newObject("PartDesign::Pocket", "Pocket004")
pocket5.Profile = sketch6
pocket5.Type = "ThroughAll"
pocket5.Reversed = True

# Sketch on YZ plane
sketch7 = body.newObject("Sketcher::SketchObject", "Sketch006")
sketch7.AttachmentSupport = (doc.getObject("YZ_Plane"), [""])
sketch7.MapMode = "FlatFace"
sketch7.addGeometry([
    Part.LineSegment(App.Vector(98.2, 137.1, 0), App.Vector(98.9, 137.1, 0)),  # 0
    Part.LineSegment(App.Vector(98.9, 137.1, 0), App.Vector(98.9, 133.9, 0)),  # 1
    Part.LineSegment(App.Vector(98.9, 133.9, 0), App.Vector(99.7, 133.9, 0)),  # 2
    Part.LineSegment(App.Vector(99.7, 133.9, 0), App.Vector(98.6, 131.9, 0)),  # 3
    Part.LineSegment(App.Vector(98.6, 131.9, 0), App.Vector(97.4, 133.9, 0)),  # 4
    Part.LineSegment(App.Vector(97.4, 133.9, 0), App.Vector(98.2, 133.9, 0)),  # 5
    Part.LineSegment(App.Vector(98.2, 133.9, 0), App.Vector(98.2, 137.1, 0)),  # 6
], False)
sketch7.addConstraint([
    Sketcher.Constraint("Coincident", 0, 2, 1, 1),
    Sketcher.Constraint("Coincident", 1, 2, 2, 1),
    Sketcher.Constraint("Coincident", 2, 2, 3, 1),
    Sketcher.Constraint("Coincident", 3, 2, 4, 1),
    Sketcher.Constraint("Coincident", 4, 2, 5, 1),
    Sketcher.Constraint("Coincident", 5, 2, 6, 1),
    Sketcher.Constraint("Coincident", 6, 2, 0, 1),
    Sketcher.Constraint("Horizontal", 0),
    Sketcher.Constraint("Vertical", 1),
    Sketcher.Constraint("Horizontal", 2),
    Sketcher.Constraint("Horizontal", 5),
    Sketcher.Constraint("Vertical", 6),
    Sketcher.Constraint("Horizontal", 2, 2, 4, 2),
    Sketcher.Constraint("Equal", 0, 2),
    Sketcher.Constraint("Equal", 2, 5),
    Sketcher.Constraint("Equal", 3, 4),
    Sketcher.Constraint("Angle", 3, Q("-120 deg")),
    Sketcher.Constraint("DistanceX", 0, 1, 0, 2, Q("0.03125 in")),
    Sketcher.Constraint("DistanceY", 1, 2, 1, 1, Q("0.125 in")),
    Sketcher.Constraint("DistanceX", -1, 1, 3, 2, Q("3.88 in")),
    Sketcher.Constraint("DistanceY", -1, 1, 0, 2, Q("137.12471 mm")),
])
pocket6 = body.newObject("PartDesign::Pocket", "Pocket005")
pocket6.Profile = sketch7
pocket6.Type = "ThroughAll"
pocket6.Reversed = True

doc.recompute()
